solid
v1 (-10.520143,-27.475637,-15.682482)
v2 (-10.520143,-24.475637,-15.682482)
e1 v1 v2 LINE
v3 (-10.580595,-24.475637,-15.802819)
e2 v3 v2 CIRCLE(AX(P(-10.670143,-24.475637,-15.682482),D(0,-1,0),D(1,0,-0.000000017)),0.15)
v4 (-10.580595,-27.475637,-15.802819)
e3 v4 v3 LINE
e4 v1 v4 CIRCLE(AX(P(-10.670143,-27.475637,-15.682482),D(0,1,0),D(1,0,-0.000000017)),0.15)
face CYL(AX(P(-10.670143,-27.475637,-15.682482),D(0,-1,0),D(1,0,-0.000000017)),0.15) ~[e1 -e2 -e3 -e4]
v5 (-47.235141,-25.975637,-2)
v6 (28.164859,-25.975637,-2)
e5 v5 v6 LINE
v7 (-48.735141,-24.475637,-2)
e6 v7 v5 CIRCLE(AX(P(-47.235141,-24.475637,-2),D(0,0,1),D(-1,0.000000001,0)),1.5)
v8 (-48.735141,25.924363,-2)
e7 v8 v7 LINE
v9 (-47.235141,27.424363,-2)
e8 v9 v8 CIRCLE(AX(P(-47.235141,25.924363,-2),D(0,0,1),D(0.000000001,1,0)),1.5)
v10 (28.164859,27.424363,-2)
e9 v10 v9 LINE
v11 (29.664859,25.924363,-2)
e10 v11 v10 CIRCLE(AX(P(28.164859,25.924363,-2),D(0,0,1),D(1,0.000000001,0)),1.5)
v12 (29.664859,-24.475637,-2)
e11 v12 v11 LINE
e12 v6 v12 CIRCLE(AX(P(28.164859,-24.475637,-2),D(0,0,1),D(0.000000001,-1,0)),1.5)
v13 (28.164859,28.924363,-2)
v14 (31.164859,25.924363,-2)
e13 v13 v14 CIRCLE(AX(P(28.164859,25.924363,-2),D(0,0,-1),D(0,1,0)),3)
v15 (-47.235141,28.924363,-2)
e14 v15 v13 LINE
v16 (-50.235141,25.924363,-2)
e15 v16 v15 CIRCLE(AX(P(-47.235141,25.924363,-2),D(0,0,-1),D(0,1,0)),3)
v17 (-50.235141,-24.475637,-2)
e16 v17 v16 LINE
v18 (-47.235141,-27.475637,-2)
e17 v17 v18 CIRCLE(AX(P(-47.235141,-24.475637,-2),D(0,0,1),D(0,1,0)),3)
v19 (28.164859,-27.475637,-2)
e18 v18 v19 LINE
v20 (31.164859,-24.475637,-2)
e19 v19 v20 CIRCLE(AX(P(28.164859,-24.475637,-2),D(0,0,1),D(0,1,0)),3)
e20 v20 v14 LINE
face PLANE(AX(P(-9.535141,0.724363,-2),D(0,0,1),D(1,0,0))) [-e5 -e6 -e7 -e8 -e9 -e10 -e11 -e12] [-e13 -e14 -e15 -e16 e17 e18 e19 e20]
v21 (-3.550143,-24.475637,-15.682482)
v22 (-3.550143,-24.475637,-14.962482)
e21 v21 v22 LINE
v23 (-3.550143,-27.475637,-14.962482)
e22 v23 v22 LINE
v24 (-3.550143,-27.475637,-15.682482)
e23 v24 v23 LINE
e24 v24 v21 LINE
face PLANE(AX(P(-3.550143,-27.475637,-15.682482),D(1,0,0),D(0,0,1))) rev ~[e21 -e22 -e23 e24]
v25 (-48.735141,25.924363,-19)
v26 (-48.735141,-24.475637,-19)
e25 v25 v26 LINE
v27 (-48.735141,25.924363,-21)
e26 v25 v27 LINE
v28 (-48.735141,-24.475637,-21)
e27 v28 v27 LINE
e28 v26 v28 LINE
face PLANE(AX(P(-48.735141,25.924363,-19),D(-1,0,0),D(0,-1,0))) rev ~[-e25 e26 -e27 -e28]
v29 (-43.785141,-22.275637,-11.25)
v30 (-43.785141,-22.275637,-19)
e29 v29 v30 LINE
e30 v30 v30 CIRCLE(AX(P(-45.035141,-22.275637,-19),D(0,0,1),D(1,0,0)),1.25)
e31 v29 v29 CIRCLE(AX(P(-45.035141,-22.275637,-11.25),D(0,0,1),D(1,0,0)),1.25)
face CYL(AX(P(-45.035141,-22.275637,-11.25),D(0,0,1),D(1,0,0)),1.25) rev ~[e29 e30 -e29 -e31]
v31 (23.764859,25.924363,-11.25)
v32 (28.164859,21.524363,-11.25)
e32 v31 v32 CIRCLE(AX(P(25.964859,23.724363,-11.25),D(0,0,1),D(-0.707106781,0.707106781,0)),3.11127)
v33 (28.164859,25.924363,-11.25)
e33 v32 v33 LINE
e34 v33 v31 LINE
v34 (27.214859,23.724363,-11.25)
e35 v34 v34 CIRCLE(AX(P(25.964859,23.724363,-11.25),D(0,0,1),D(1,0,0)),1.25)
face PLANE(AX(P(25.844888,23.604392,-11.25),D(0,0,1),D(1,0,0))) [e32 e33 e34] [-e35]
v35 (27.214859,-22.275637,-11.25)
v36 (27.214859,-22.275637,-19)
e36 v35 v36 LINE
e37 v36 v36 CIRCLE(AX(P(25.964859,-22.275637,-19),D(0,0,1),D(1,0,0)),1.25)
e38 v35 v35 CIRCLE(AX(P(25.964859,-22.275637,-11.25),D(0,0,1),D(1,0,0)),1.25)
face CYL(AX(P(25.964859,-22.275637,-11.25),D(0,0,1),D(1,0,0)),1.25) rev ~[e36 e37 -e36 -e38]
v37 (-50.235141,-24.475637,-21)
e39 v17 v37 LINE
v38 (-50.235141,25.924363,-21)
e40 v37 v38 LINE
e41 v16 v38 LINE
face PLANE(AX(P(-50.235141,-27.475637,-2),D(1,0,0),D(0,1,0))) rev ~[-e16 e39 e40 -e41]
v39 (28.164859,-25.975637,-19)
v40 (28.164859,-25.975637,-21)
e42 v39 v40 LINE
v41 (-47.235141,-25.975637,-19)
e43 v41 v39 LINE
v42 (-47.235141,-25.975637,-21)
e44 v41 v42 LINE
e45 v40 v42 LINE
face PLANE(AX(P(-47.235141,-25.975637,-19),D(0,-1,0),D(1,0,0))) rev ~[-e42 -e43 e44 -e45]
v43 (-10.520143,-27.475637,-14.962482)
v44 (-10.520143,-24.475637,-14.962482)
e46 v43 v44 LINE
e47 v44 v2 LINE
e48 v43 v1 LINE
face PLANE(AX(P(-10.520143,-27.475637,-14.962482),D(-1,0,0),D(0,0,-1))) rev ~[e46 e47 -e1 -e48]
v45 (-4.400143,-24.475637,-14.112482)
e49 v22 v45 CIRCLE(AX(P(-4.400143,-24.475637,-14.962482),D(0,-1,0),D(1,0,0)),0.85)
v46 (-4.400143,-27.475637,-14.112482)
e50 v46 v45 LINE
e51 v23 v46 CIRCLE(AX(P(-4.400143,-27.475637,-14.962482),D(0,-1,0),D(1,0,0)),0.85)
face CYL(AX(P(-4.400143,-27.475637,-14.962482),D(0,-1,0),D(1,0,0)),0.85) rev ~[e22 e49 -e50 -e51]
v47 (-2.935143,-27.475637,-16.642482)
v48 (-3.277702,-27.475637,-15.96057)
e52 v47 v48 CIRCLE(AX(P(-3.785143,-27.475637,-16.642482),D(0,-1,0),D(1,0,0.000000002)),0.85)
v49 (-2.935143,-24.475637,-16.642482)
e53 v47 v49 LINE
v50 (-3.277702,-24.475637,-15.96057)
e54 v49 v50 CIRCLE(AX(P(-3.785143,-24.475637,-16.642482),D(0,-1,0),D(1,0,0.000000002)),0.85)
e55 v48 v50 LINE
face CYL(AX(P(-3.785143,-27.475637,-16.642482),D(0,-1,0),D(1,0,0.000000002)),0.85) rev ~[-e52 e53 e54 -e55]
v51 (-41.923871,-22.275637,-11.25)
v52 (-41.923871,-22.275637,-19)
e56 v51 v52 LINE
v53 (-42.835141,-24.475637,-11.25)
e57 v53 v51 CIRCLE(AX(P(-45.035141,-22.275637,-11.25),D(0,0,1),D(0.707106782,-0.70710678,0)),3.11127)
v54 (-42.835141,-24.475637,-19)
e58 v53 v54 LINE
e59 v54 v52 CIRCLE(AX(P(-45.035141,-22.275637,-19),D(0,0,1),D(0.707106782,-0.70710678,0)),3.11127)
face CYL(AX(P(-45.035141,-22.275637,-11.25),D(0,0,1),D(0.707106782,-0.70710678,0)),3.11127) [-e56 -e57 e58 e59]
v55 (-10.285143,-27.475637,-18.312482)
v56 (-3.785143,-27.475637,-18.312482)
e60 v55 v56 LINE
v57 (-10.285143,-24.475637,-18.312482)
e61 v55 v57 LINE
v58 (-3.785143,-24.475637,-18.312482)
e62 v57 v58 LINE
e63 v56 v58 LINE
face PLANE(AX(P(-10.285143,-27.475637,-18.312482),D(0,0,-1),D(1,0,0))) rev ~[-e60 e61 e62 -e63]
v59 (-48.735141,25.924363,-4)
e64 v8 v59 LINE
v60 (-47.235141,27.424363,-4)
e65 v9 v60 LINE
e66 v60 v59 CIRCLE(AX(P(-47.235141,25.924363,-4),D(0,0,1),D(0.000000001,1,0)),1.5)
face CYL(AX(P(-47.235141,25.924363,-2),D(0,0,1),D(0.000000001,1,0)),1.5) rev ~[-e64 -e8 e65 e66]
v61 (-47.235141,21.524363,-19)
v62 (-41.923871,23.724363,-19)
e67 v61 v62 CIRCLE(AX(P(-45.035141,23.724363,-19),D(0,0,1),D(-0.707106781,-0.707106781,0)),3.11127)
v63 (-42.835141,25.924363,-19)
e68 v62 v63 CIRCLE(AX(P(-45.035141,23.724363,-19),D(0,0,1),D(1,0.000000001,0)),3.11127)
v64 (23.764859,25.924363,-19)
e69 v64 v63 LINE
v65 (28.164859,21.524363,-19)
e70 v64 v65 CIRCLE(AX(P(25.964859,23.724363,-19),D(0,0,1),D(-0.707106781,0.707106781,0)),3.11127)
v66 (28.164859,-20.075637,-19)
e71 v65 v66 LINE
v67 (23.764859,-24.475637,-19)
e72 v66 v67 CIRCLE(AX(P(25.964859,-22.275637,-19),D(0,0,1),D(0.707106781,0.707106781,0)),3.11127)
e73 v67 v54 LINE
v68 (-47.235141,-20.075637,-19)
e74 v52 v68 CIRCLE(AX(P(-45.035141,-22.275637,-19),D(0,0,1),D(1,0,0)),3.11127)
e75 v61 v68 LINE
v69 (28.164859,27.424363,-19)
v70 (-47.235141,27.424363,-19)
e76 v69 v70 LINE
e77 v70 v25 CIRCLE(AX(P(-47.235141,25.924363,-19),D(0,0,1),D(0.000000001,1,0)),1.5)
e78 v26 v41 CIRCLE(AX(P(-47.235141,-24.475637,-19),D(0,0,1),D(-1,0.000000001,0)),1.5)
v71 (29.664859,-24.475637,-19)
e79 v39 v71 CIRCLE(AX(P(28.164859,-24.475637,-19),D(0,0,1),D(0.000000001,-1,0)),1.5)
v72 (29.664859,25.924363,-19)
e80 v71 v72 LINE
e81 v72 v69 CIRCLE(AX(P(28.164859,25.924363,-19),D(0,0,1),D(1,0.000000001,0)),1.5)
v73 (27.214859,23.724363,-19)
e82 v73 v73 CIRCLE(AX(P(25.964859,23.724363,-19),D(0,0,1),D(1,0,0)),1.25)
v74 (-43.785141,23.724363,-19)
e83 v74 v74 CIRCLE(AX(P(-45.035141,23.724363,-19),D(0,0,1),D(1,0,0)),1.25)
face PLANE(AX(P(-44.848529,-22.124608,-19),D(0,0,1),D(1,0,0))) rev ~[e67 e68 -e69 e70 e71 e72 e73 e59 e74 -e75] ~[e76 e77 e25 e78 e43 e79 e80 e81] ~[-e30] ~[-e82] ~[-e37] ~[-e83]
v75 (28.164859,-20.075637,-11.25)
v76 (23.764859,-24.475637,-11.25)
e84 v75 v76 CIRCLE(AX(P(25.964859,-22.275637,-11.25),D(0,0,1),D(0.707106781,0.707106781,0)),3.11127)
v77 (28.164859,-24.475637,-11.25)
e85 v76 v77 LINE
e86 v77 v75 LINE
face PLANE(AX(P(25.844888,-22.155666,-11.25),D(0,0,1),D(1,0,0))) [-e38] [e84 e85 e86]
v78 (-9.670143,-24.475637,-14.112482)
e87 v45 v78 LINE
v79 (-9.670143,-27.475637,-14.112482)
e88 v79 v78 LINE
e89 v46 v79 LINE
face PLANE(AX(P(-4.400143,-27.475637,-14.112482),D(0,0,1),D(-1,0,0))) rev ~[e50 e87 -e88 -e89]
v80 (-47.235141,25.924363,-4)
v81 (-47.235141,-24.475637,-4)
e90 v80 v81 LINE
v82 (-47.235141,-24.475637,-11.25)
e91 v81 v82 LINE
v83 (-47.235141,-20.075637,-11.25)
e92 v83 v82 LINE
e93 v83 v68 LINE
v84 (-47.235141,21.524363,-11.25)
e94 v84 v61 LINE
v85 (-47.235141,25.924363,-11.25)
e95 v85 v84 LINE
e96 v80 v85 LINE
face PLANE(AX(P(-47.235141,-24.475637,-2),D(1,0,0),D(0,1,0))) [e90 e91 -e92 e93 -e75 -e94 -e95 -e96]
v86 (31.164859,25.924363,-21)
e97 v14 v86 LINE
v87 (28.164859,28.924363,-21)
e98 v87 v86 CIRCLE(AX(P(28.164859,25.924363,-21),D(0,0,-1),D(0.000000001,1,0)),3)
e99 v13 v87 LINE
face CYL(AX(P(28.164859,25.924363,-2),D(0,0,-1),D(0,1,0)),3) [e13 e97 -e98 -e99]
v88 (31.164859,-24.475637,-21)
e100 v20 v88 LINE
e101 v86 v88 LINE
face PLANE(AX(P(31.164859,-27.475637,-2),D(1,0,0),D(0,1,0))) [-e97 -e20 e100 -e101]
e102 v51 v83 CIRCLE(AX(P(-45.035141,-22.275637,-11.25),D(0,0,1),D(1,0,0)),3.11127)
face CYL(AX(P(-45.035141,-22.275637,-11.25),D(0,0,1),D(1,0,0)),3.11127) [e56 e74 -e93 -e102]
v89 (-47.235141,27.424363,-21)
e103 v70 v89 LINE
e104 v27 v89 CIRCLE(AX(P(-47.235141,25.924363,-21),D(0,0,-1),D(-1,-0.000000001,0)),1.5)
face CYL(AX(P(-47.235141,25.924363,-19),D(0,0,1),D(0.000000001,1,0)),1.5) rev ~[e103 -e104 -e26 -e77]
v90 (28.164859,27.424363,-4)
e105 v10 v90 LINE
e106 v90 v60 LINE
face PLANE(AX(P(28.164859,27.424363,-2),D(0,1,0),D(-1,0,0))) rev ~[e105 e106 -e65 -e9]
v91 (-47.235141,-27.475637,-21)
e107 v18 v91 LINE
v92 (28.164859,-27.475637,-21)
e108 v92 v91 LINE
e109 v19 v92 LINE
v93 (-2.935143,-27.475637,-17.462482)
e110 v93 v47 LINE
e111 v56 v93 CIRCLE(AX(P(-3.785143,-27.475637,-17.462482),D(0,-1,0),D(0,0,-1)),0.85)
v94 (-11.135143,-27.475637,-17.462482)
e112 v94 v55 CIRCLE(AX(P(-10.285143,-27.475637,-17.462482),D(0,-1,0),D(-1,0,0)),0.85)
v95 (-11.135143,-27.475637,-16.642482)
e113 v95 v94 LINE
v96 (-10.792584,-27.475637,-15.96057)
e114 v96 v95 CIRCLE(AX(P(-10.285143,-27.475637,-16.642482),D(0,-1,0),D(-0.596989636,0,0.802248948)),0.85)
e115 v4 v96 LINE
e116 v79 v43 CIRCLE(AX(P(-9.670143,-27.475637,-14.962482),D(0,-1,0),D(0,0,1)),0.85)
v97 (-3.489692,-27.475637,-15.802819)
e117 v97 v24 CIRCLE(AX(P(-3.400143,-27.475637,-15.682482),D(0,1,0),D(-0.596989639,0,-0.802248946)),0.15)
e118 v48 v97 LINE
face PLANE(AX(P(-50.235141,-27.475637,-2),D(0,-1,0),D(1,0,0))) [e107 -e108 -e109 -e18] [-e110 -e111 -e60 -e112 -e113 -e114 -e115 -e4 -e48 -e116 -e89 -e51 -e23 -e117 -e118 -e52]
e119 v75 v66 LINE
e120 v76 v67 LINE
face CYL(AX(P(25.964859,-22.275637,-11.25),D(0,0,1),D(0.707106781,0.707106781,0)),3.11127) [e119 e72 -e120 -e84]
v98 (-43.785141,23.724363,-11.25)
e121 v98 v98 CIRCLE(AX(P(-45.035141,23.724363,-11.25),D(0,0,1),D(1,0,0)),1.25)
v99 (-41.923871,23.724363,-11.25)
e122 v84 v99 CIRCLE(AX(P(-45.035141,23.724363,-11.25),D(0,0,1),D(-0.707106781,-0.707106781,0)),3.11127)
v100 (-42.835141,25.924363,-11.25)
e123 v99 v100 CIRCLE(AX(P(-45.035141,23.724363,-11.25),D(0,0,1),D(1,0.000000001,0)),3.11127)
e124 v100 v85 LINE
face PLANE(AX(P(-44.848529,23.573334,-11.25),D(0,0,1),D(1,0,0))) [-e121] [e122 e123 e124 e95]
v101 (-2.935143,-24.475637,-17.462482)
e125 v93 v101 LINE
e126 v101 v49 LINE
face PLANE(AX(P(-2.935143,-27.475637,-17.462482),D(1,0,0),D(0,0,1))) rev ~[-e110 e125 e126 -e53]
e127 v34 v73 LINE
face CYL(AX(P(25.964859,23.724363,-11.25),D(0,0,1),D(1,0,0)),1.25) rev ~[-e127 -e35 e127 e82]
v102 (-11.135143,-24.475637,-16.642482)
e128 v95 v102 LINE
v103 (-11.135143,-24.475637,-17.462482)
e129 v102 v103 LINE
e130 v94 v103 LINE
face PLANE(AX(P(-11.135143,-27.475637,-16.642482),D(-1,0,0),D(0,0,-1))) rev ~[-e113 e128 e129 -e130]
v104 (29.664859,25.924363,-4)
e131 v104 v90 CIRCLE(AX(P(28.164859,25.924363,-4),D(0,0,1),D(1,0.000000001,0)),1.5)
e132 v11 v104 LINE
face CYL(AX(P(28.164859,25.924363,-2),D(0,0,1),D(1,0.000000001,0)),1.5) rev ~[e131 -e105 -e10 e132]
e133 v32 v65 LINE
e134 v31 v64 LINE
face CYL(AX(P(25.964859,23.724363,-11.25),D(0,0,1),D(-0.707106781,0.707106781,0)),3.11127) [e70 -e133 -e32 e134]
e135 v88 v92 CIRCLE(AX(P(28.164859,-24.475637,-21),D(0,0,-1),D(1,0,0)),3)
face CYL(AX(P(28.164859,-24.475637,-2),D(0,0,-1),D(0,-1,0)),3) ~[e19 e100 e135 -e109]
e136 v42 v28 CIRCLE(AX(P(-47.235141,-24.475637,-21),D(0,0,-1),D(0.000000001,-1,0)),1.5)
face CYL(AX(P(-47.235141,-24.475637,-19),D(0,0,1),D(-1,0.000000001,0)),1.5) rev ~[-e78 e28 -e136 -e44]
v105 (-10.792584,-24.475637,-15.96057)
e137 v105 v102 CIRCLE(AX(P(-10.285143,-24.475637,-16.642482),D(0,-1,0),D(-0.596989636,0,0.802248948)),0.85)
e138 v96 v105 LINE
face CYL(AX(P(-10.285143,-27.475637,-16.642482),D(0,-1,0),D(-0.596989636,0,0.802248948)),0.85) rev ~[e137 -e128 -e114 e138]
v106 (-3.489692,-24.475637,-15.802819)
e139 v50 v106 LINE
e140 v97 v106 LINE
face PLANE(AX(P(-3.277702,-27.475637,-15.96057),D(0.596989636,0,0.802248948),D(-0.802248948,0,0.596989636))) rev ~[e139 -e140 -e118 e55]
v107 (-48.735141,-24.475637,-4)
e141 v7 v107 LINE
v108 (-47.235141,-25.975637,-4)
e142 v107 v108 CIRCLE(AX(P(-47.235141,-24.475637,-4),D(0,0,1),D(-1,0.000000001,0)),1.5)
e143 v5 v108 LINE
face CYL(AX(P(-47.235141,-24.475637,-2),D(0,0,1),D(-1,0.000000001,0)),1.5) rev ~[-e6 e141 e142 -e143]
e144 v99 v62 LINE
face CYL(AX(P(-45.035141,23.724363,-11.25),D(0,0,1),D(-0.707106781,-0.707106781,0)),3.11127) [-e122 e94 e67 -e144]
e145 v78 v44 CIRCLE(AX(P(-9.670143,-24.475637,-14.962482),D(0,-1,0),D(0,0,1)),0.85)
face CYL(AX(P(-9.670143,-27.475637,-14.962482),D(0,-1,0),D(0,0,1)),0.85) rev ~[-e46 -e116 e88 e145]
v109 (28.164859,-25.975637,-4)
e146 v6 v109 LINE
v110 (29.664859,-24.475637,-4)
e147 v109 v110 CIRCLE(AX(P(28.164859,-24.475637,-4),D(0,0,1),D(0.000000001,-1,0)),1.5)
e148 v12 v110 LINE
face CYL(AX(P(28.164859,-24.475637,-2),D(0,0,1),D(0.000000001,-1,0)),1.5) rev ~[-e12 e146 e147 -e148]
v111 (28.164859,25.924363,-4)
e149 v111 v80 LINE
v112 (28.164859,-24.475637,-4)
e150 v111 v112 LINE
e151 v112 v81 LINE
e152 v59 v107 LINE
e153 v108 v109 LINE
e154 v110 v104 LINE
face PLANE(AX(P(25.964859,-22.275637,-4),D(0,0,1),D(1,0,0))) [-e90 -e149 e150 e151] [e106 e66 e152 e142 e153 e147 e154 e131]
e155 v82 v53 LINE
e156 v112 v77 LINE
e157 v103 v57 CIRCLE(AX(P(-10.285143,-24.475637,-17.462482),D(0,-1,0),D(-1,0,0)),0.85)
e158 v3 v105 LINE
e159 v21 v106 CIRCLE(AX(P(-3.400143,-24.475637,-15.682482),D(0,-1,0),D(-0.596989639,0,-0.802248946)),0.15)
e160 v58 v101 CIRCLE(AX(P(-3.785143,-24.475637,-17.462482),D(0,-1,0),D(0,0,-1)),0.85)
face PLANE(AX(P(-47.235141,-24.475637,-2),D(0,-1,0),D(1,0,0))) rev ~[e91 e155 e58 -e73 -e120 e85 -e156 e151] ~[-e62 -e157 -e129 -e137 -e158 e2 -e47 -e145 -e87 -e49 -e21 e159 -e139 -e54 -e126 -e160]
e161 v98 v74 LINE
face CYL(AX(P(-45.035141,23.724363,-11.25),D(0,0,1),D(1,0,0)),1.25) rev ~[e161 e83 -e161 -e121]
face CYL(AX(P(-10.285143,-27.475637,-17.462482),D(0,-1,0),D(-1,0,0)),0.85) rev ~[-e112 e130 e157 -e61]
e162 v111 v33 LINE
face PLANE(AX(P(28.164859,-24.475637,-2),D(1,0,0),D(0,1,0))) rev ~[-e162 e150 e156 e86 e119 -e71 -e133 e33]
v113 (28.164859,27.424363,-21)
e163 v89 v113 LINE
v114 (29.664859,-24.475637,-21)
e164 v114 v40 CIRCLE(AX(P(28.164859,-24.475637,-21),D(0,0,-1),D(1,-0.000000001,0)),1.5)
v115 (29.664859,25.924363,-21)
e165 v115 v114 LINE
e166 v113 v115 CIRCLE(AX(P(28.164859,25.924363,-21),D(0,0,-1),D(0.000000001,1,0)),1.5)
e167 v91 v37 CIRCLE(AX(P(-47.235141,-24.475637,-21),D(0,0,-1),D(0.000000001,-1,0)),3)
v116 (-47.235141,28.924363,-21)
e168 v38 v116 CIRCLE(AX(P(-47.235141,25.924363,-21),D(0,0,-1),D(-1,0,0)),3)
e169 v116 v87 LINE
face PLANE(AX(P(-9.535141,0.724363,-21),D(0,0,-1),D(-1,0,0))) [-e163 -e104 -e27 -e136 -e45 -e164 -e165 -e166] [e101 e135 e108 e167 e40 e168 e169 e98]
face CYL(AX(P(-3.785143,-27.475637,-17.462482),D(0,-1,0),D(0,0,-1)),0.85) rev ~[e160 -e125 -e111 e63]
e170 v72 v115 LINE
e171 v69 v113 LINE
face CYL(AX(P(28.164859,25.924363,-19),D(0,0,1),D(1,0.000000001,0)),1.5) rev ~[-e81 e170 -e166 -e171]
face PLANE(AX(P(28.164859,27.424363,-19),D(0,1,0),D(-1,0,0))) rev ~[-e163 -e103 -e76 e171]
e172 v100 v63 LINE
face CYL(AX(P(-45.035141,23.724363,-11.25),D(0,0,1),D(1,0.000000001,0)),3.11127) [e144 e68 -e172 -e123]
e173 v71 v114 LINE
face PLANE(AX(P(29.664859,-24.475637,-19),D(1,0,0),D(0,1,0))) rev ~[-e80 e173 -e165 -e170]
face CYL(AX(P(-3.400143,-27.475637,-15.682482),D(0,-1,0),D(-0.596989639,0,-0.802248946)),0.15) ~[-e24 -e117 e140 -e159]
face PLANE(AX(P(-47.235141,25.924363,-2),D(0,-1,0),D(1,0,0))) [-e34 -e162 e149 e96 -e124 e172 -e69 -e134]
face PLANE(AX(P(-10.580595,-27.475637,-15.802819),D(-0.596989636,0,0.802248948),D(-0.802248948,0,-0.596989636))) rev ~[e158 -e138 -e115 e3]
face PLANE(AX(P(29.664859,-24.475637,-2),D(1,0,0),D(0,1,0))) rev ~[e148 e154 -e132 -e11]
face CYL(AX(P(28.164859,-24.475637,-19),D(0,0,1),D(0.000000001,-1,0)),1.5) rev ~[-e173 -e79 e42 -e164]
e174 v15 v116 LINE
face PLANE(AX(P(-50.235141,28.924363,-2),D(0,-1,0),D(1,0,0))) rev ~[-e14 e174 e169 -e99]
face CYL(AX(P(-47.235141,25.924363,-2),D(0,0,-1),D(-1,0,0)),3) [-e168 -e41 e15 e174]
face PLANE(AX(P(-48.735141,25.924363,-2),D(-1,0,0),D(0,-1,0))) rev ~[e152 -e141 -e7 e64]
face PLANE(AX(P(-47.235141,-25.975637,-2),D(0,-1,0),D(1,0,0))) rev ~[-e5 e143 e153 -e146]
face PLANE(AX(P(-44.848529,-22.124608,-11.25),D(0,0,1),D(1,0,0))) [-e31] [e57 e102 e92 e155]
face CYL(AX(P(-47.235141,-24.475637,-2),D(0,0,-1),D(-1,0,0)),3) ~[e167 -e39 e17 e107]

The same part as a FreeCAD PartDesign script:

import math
import FreeCAD as App
import Part
import Sketcher

V = App.Vector


def edges_at(feature, points):
    """Names of the edges that pass closest to the given points."""
    edges = feature.Shape.Edges
    near = lambda p: min(range(len(edges)), key=lambda i: edges[i].distToShape(Part.Vertex(*p))[0])
    return sorted({f"Edge{near(p) + 1}" for p in points})


def add_polygon(sketch, points):
    """Adds a closed chain of lines whose ends are joined by coincident constraints."""
    first, n = sketch.GeometryCount, len(points)
    for a, b in zip(points, points[1:] + points[:1]):
        sketch.addGeometry(Part.LineSegment(App.Vector(*a, 0), App.Vector(*b, 0)), False)
    for i in range(n):
        sketch.addConstraint(Sketcher.Constraint("Coincident", first + i, 2, first + (i + 1) % n, 1))

doc = App.newDocument("Part")
body = doc.addObject("PartDesign::Body", "Body")

sketch1 = body.newObject("Sketcher::SketchObject", "Sketch")
sketch1.AttachmentSupport = (doc.getObject("XY_Plane"), [""])
sketch1.MapMode = "FlatFace"
sketch1.AttachmentOffset = App.Placement(V(0, 0, -2), App.Rotation())
add_polygon(sketch1, [(-50.235141, 28.924363), (-50.235141, -27.475637), (31.164859, -27.475637), (31.164859, 28.924363)])
add_polygon(sketch1, [(28.164859, -24.475637), (-47.235141, -24.475637), (-47.235141, 25.924363), (28.164859, 25.924363)])
sketch1.addConstraint([
    Sketcher.Constraint("Vertical", 0),
    Sketcher.Constraint("Horizontal", 1),
    Sketcher.Constraint("Vertical", 2),
    Sketcher.Constraint("Horizontal", 3),
    Sketcher.Constraint("Horizontal", 4),
    Sketcher.Constraint("Vertical", 5),
    Sketcher.Constraint("Horizontal", 6),
    Sketcher.Constraint("Vertical", 7),
    Sketcher.Constraint("DistanceX", 1, 1, 1, 2, 81.4),
    Sketcher.Constraint("DistanceX", 4, 2, 4, 1, 75.4),
    Sketcher.Constraint("DistanceY", 0, 2, 0, 1, 56.4),
    Sketcher.Constraint("DistanceY", 5, 1, 5, 2, 50.4),
    Sketcher.Constraint("DistanceX", 0, 2, 4, 2, 3.0),
    Sketcher.Constraint("DistanceY", 0, 2, 4, 2, 3.0),
    Sketcher.Constraint("DistanceX", 0, 2, -1, 1, 50.235141),
    Sketcher.Constraint("DistanceY", 0, 2, -1, 1, 27.475637),
])
pad1 = body.newObject("PartDesign::Pad", "Pad")
pad1.Profile = sketch1
pad1.Length = 27
pad1.Reversed = True
doc.recompute()

fillet = body.newObject("PartDesign::Fillet", "Fillet")
fillet.Base = (pad1, edges_at(pad1, [
    (-50.235, -27.476, -15.5),
    (-50.235, 28.924, -15.5),
    (31.165, 28.924, -15.5),
    (31.165, -27.476, -15.5),
]))
fillet.Radius = 3

sketch2 = body.newObject("Sketcher::SketchObject", "Sketch001")
sketch2.AttachmentSupport = (doc.getObject("XY_Plane"), [""])
sketch2.MapMode = "FlatFace"
sketch2.AttachmentOffset = App.Placement(V(0, 0, -2), App.Rotation())
sketch2.addGeometry([
    Part.LineSegment(V(28.164859, 27.424363, 0), V(-47.235141, 27.424363, 0)),
    Part.ArcOfCircle(Part.Circle(V(-47.235141, 25.924363, 0), V(0, 0, 1), 1.5), math.radians(90), math.radians(180)),
    Part.LineSegment(V(-48.735141, 25.924363, 0), V(-48.735141, -24.475637, 0)),
    Part.ArcOfCircle(Part.Circle(V(-47.235141, -24.475637, 0), V(0, 0, 1), 1.5), math.radians(180), math.radians(270)),
    Part.LineSegment(V(-47.235141, -25.975637, 0), V(28.164859, -25.975637, 0)),
    Part.ArcOfCircle(Part.Circle(V(28.164859, -24.475637, 0), V(0, 0, 1), 1.5), math.radians(-90), math.radians(0)),
    Part.LineSegment(V(29.664859, -24.475637, 0), V(29.664859, 25.924363, 0)),
    Part.ArcOfCircle(Part.Circle(V(28.164859, 25.924363, 0), V(0, 0, 1), 1.5), math.radians(0), math.radians(90)),
], False)
sketch2.addConstraint([
    Sketcher.Constraint("Tangent", 0, 2, 1, 1),
    Sketcher.Constraint("Tangent", 1, 2, 2, 1),
    Sketcher.Constraint("Tangent", 2, 2, 3, 1),
    Sketcher.Constraint("Tangent", 3, 2, 4, 1),
    Sketcher.Constraint("Tangent", 4, 2, 5, 1),
    Sketcher.Constraint("Tangent", 5, 2, 6, 1),
    Sketcher.Constraint("Tangent", 6, 2, 7, 1),
    Sketcher.Constraint("Tangent", 7, 2, 0, 1),
    Sketcher.Constraint("Horizontal", 0),
    Sketcher.Constraint("Vertical", 2),
    Sketcher.Constraint("Horizontal", 4),
    Sketcher.Constraint("Vertical", 6),
    Sketcher.Constraint("Equal", 1, 3),
    Sketcher.Constraint("Equal", 3, 5),
    Sketcher.Constraint("Equal", 5, 7),
    Sketcher.Constraint("Radius", 1, 1.5),
    Sketcher.Constraint("DistanceX", 0, 2, 0, 1, 75.4),
    Sketcher.Constraint("DistanceY", 2, 2, 2, 1, 50.4),
    Sketcher.Constraint("DistanceX", 1, 3, -1, 1, 47.235141),
    Sketcher.Constraint("DistanceY", -1, 1, 1, 3, 25.924363),
])
pocket1 = body.newObject("PartDesign::Pocket", "Pocket")
pocket1.Profile = sketch2
pocket1.Length = 2

sketch3 = body.newObject("Sketcher::SketchObject", "Sketch002")
sketch3.AttachmentSupport = (doc.getObject("XY_Plane"), [""])
sketch3.MapMode = "FlatFace"
sketch3.AttachmentOffset = App.Placement(V(0, 0, -19), App.Rotation())
sketch3.addGeometry([
    Part.LineSegment(V(28.164859, 27.424363, 0), V(-47.235141, 27.424363, 0)),
    Part.ArcOfCircle(Part.Circle(V(-47.235141, 25.924363, 0), V(0, 0, 1), 1.5), math.radians(90), math.radians(180)),
    Part.LineSegment(V(-48.735141, 25.924363, 0), V(-48.735141, -24.475637, 0)),
    Part.ArcOfCircle(Part.Circle(V(-47.235141, -24.475637, 0), V(0, 0, 1), 1.5), math.radians(180), math.radians(270)),
    Part.LineSegment(V(-47.235141, -25.975637, 0), V(28.164859, -25.975637, 0)),
    Part.ArcOfCircle(Part.Circle(V(28.164859, -24.475637, 0), V(0, 0, 1), 1.5), math.radians(-90), math.radians(0)),
    Part.LineSegment(V(29.664859, -24.475637, 0), V(29.664859, 25.924363, 0)),
    Part.ArcOfCircle(Part.Circle(V(28.164859, 25.924363, 0), V(0, 0, 1), 1.5), math.radians(0), math.radians(90)),
    Part.Circle(V(-45.035141, -22.275637, 0), V(0, 0, 1), 1.3),
    Part.Circle(V(25.964859, -22.275637, 0), V(0, 0, 1), 1.3),
    Part.Circle(V(-45.035141, 23.724363, 0), V(0, 0, 1), 1.3),
    Part.Circle(V(25.964859, 23.724363, 0), V(0, 0, 1), 1.3),
], False)
sketch3.addConstraint([
    Sketcher.Constraint("Tangent", 0, 2, 1, 1),
    Sketcher.Constraint("Tangent", 1, 2, 2, 1),
    Sketcher.Constraint("Tangent", 2, 2, 3, 1),
    Sketcher.Constraint("Tangent", 3, 2, 4, 1),
    Sketcher.Constraint("Tangent", 4, 2, 5, 1),
    Sketcher.Constraint("Tangent", 5, 2, 6, 1),
    Sketcher.Constraint("Tangent", 6, 2, 7, 1),
    Sketcher.Constraint("Tangent", 7, 2, 0, 1),
    Sketcher.Constraint("Horizontal", 0),
    Sketcher.Constraint("Vertical", 2),
    Sketcher.Constraint("Horizontal", 4),
    Sketcher.Constraint("Vertical", 6),
    Sketcher.Constraint("Equal", 1, 3),
    Sketcher.Constraint("Equal", 3, 5),
    Sketcher.Constraint("Equal", 5, 7),
    Sketcher.Constraint("Equal", 8, 9),
    Sketcher.Constraint("Equal", 9, 10),
    Sketcher.Constraint("Equal", 10, 11),
    Sketcher.Constraint("Horizontal", 8, 3, 9, 3),
    Sketcher.Constraint("Horizontal", 10, 3, 11, 3),
    Sketcher.Constraint("Vertical", 8, 3, 10, 3),
    Sketcher.Constraint("Vertical", 9, 3, 11, 3),
    Sketcher.Constraint("Diameter", 8, 2.6),
    Sketcher.Constraint("Radius", 1, 1.5),
    Sketcher.Constraint("DistanceX", 0, 2, 0, 1, 75.4),
    Sketcher.Constraint("DistanceY", 2, 2, 2, 1, 50.4),
    Sketcher.Constraint("DistanceX", 8, 3, 9, 3, 71.0),
    Sketcher.Constraint("DistanceY", 8, 3, 10, 3, 46.0),
    Sketcher.Constraint("DistanceX", 3, 3, 8, 3, 2.2),
    Sketcher.Constraint("DistanceY", 3, 3, 8, 3, 2.2),
    Sketcher.Constraint("DistanceX", 1, 3, -1, 1, 47.235141),
    Sketcher.Constraint("DistanceY", -1, 1, 1, 3, 25.924363),
])
pocket2 = body.newObject("PartDesign::Pocket", "Pocket001")
pocket2.Profile = sketch3
pocket2.Length = 10

sketch4 = body.newObject("Sketcher::SketchObject", "Sketch003")
sketch4.AttachmentSupport = (doc.getObject("XY_Plane"), [""])
sketch4.MapMode = "FlatFace"
sketch4.AttachmentOffset = App.Placement(V(0, 0, -11.25), App.Rotation())
sketch4.addGeometry([
    Part.LineSegment(V(-47.235141, -24.475637, 0), V(-42.835141, -24.475637, 0)),
    Part.ArcOfCircle(Part.Circle(V(-45.035141, -22.275637, 0), V(0, 0, 1), 3.11127), math.radians(-45), math.radians(0)),
    Part.ArcOfCircle(Part.Circle(V(-45.035141, -22.275637, 0), V(0, 0, 1), 3.11127), math.radians(0), math.radians(135)),
    Part.LineSegment(V(-47.235141, -20.075637, 0), V(-47.235141, -24.475637, 0)),
    Part.Circle(V(-45.035141, -22.275637, 0), V(0, 0, 1), 1.25),
    Part.ArcOfCircle(Part.Circle(V(-45.035141, 23.724363, 0), V(0, 0, 1), 3.11127), math.radians(0), math.radians(45)),
    Part.LineSegment(V(-42.835141, 25.924363, 0), V(-47.235141, 25.924363, 0)),
    Part.LineSegment(V(-47.235141, 25.924363, 0), V(-47.235141, 21.524363, 0)),
    Part.ArcOfCircle(Part.Circle(V(-45.035141, 23.724363, 0), V(0, 0, 1), 3.11127), math.radians(-135), math.radians(0)),
    Part.Circle(V(-45.035141, 23.724363, 0), V(0, 0, 1), 1.25),
    Part.ArcOfCircle(Part.Circle(V(25.964859, 23.724363, 0), V(0, 0, 1), 3.11127), math.radians(135), math.radians(315)),
    Part.LineSegment(V(28.164859, 21.524363, 0), V(28.164859, 25.924363, 0)),
    Part.LineSegment(V(28.164859, 25.924363, 0), V(23.764859, 25.924363, 0)),
    Part.Circle(V(25.964859, 23.724363, 0), V(0, 0, 1), 1.25),
    Part.LineSegment(V(23.764859, -24.475637, 0), V(28.164859, -24.475637, 0)),
    Part.LineSegment(V(28.164859, -24.475637, 0), V(28.164859, -20.075637, 0)),
    Part.ArcOfCircle(Part.Circle(V(25.964859, -22.275637, 0), V(0, 0, 1), 3.11127), math.radians(45), math.radians(225)),
    Part.Circle(V(25.964859, -22.275637, 0), V(0, 0, 1), 1.25),
], False)
sketch4.addConstraint([
    Sketcher.Constraint("Coincident", 0, 2, 1, 1),
    Sketcher.Constraint("Tangent", 1, 2, 2, 1),
    Sketcher.Constraint("Coincident", 2, 2, 3, 1),
    Sketcher.Constraint("Coincident", 3, 2, 0, 1),
    Sketcher.Constraint("Coincident", 5, 2, 6, 1),
    Sketcher.Constraint("Coincident", 6, 2, 7, 1),
    Sketcher.Constraint("Coincident", 7, 2, 8, 1),
    Sketcher.Constraint("Tangent", 8, 2, 5, 1),
    Sketcher.Constraint("Coincident", 10, 2, 11, 1),
    Sketcher.Constraint("Coincident", 11, 2, 12, 1),
    Sketcher.Constraint("Coincident", 12, 2, 10, 1),
    Sketcher.Constraint("Coincident", 14, 2, 15, 1),
    Sketcher.Constraint("Coincident", 15, 2, 16, 1),
    Sketcher.Constraint("Coincident", 16, 2, 14, 1),
    Sketcher.Constraint("Horizontal", 0),
    Sketcher.Constraint("Vertical", 3),
    Sketcher.Constraint("Horizontal", 6),
    Sketcher.Constraint("Vertical", 7),
    Sketcher.Constraint("Vertical", 11),
    Sketcher.Constraint("Horizontal", 12),
    Sketcher.Constraint("Horizontal", 14),
    Sketcher.Constraint("Vertical", 15),
    Sketcher.Constraint("Coincident", 4, 3, 1, 3),
    Sketcher.Constraint("Coincident", 9, 3, 5, 3),
    Sketcher.Constraint("Coincident", 13, 3, 10, 3),
    Sketcher.Constraint("Coincident", 17, 3, 16, 3),
    Sketcher.Constraint("Equal", 1, 2),
    Sketcher.Constraint("Equal", 2, 5),
    Sketcher.Constraint("Equal", 5, 8),
    Sketcher.Constraint("Equal", 4, 9),
    Sketcher.Constraint("Equal", 8, 10),
    Sketcher.Constraint("Equal", 9, 13),
    Sketcher.Constraint("Equal", 10, 16),
    Sketcher.Constraint("Equal", 13, 17),
    Sketcher.Constraint("Horizontal", 9, 3, 10, 3),
    Sketcher.Constraint("Horizontal", 4, 3, 16, 3),
    Sketcher.Constraint("Horizontal", 17, 3, 1, 2),
    Sketcher.Constraint("Horizontal", 13, 3, 8, 2),
    Sketcher.Constraint("Horizontal", 7, 2, 10, 2),
    Sketcher.Constraint("Horizontal", 6, 2, 11, 2),
    Sketcher.Constraint("Horizontal", 3, 2, 14, 2),
    Sketcher.Constraint("Horizontal", 2, 2, 15, 2),
    Sketcher.Constraint("Vertical", 4, 3, 5, 3),
    Sketcher.Constraint("Vertical", 13, 3, 16, 3),
    Sketcher.Constraint("Vertical", 0, 2, 5, 2),
    Sketcher.Constraint("Vertical", 3, 2, 6, 2),
    Sketcher.Constraint("Equal", 14, 3),
    Sketcher.Constraint("Diameter", 4, 2.5),
    Sketcher.Constraint("DistanceX", 0, 1, 0, 2, 4.4),
    Sketcher.Constraint("DistanceY", 1, 3, 5, 3, 46.0),
    Sketcher.Constraint("DistanceX", 8, 3, 10, 3, 71.0),
    Sketcher.Constraint("DistanceY", 2, 2, 5, 2, 46.0),
    Sketcher.Constraint("DistanceX", 1, 3, -1, 1, 45.035141),
    Sketcher.Constraint("DistanceY", 1, 3, -1, 1, 22.275637),
])
pad2 = body.newObject("PartDesign::Pad", "Pad001")
pad2.Profile = sketch4
pad2.Length = 7.75
pad2.Reversed = True

sketch5 = body.newObject("Sketcher::SketchObject", "Sketch004")
sketch5.AttachmentSupport = (doc.getObject("XZ_Plane"), [""])
sketch5.MapMode = "FlatFace"
sketch5.AttachmentOffset = App.Placement(V(0, 0, 27.475637), App.Rotation())
sketch5.addGeometry([
    Part.LineSegment(V(-10.285143, -18.312482, 0), V(-3.785143, -18.312482, 0)),
    Part.ArcOfCircle(Part.Circle(V(-3.785143, -17.462482, 0), V(0, 0, 1), 0.85), math.radians(-90), math.radians(0)),
    Part.LineSegment(V(-2.935143, -17.462482, 0), V(-2.935143, -16.642482, 0)),
    Part.ArcOfCircle(Part.Circle(V(-3.785143, -16.642482, 0), V(0, 0, 1), 0.85), math.radians(0), math.radians(53.345401)),
    Part.LineSegment(V(-3.277702, -15.96057, 0), V(-3.489692, -15.802819, 0)),
    Part.ArcOfCircle(Part.Circle(V(-3.400143, -15.682482, 0), V(0, 0, 1), 0.15), math.radians(180), math.radians(233.345401)),
    Part.LineSegment(V(-3.550143, -15.682482, 0), V(-3.550143, -14.962482, 0)),
    Part.ArcOfCircle(Part.Circle(V(-4.400143, -14.962482, 0), V(0, 0, 1), 0.85), math.radians(0), math.radians(90)),
    Part.LineSegment(V(-4.400143, -14.112482, 0), V(-9.670143, -14.112482, 0)),
    Part.ArcOfCircle(Part.Circle(V(-9.670143, -14.962482, 0), V(0, 0, 1), 0.85), math.radians(90), math.radians(180)),
    Part.LineSegment(V(-10.520143, -14.962482, 0), V(-10.520143, -15.682482, 0)),
    Part.ArcOfCircle(Part.Circle(V(-10.670143, -15.682482, 0), V(0, 0, 1), 0.15), math.radians(-53.3454), math.radians(-0.000001)),
    Part.LineSegment(V(-10.580595, -15.802819, 0), V(-10.792584, -15.96057, 0)),
    Part.ArcOfCircle(Part.Circle(V(-10.285143, -16.642482, 0), V(0, 0, 1), 0.85), math.radians(126.654599), math.radians(180)),
    Part.LineSegment(V(-11.135143, -16.642482, 0), V(-11.135143, -17.462482, 0)),
    Part.ArcOfCircle(Part.Circle(V(-10.285143, -17.462482, 0), V(0, 0, 1), 0.85), math.radians(180), math.radians(270)),
], False)
sketch5.addConstraint([
    Sketcher.Constraint("Tangent", 0, 2, 1, 1),
    Sketcher.Constraint("Tangent", 1, 2, 2, 1),
    Sketcher.Constraint("Tangent", 2, 2, 3, 1),
    Sketcher.Constraint("Tangent", 3, 2, 4, 1),
    Sketcher.Constraint("Tangent", 4, 2, 5, 2),
    Sketcher.Constraint("Tangent", 5, 1, 6, 1),
    Sketcher.Constraint("Tangent", 6, 2, 7, 1),
    Sketcher.Constraint("Tangent", 7, 2, 8, 1),
    Sketcher.Constraint("Tangent", 8, 2, 9, 1),
    Sketcher.Constraint("Tangent", 9, 2, 10, 1),
    Sketcher.Constraint("Tangent", 10, 2, 11, 2),
    Sketcher.Constraint("Tangent", 11, 1, 12, 1),
    Sketcher.Constraint("Tangent", 12, 2, 13, 1),
    Sketcher.Constraint("Tangent", 13, 2, 14, 1),
    Sketcher.Constraint("Tangent", 14, 2, 15, 1),
    Sketcher.Constraint("Tangent", 15, 2, 0, 1),
    Sketcher.Constraint("Horizontal", 0),
    Sketcher.Constraint("Vertical", 2),
    Sketcher.Constraint("Vertical", 6),
    Sketcher.Constraint("Horizontal", 8),
    Sketcher.Constraint("Vertical", 10),
    Sketcher.Constraint("Vertical", 14),
    Sketcher.Constraint("Equal", 1, 3),
    Sketcher.Constraint("Equal", 3, 7),
    Sketcher.Constraint("Equal", 7, 9),
    Sketcher.Constraint("Equal", 5, 11),
    Sketcher.Constraint("Equal", 9, 13),
    Sketcher.Constraint("Equal", 13, 15),
    Sketcher.Constraint("Horizontal", 5, 3, 11, 3),
    Sketcher.Constraint("Horizontal", 3, 3, 13, 3),
    Sketcher.Constraint("Horizontal", 4, 2, 11, 1),
    Sketcher.Constraint("Radius", 1, 0.85),
    Sketcher.Constraint("Radius", 5, 0.15),
    Sketcher.Constraint("DistanceX", 0, 1, 0, 2, 6.5),
    Sketcher.Constraint("DistanceX", 8, 2, 8, 1, 5.27),
    Sketcher.Constraint("DistanceY", 2, 1, 2, 2, 0.82),
    Sketcher.Constraint("DistanceY", 6, 1, 6, 2, 0.72),
    Sketcher.Constraint("DistanceY", 1, 3, 7, 3, 2.5),
    Sketcher.Constraint("DistanceY", 1, 3, -1, 1, 17.462482),
    Sketcher.Constraint("DistanceX", 4, 2, -1, 1, 3.489692),
])
pocket3 = body.newObject("PartDesign::Pocket", "Pocket002")
pocket3.Profile = sketch5
pocket3.Length = 28.2

sketch6 = body.newObject("Sketcher::SketchObject", "Sketch005")
sketch6.AttachmentSupport = (doc.getObject("XY_Plane"), [""])
sketch6.MapMode = "FlatFace"
sketch6.AttachmentOffset = App.Placement(V(0, 0, -21), App.Rotation())
sketch6.addGeometry([
    Part.LineSegment(V(-50.235141, -24.475637, 0), V(-50.235141, 25.924363, 0)),
    Part.ArcOfCircle(Part.Circle(V(-47.235141, 25.924363, 0), V(0, 0, 1), 3), math.radians(90), math.radians(180)),
    Part.LineSegment(V(-47.235141, 28.924363, 0), V(28.164859, 28.924363, 0)),
    Part.ArcOfCircle(Part.Circle(V(28.164859, 25.924363, 0), V(0, 0, 1), 3), math.radians(0), math.radians(90)),
    Part.LineSegment(V(31.164859, 25.924363, 0), V(31.164859, -24.475637, 0)),
    Part.ArcOfCircle(Part.Circle(V(28.164859, -24.475637, 0), V(0, 0, 1), 3), math.radians(-90), math.radians(0)),
    Part.LineSegment(V(28.164859, -27.475637, 0), V(-47.235141, -27.475637, 0)),
    Part.ArcOfCircle(Part.Circle(V(-47.235141, -24.475637, 0), V(0, 0, 1), 3), math.radians(180), math.radians(270)),
    Part.LineSegment(V(29.664859, -24.475637, 0), V(29.664859, 25.924363, 0)),
    Part.ArcOfCircle(Part.Circle(V(28.164859, 25.924363, 0), V(0, 0, 1), 1.5), math.radians(0), math.radians(90)),
    Part.LineSegment(V(28.164859, 27.424363, 0), V(-47.235141, 27.424363, 0)),
    Part.ArcOfCircle(Part.Circle(V(-47.235141, 25.924363, 0), V(0, 0, 1), 1.5), math.radians(90), math.radians(180)),
    Part.LineSegment(V(-48.735141, 25.924363, 0), V(-48.735141, -24.475637, 0)),
    Part.ArcOfCircle(Part.Circle(V(-47.235141, -24.475637, 0), V(0, 0, 1), 1.5), math.radians(180), math.radians(270)),
    Part.LineSegment(V(-47.235141, -25.975637, 0), V(28.164859, -25.975637, 0)),
    Part.ArcOfCircle(Part.Circle(V(28.164859, -24.475637, 0), V(0, 0, 1), 1.5), math.radians(-90), math.radians(0)),
], False)
sketch6.addConstraint([
    Sketcher.Constraint("Tangent", 0, 2, 1, 2),
    Sketcher.Constraint("Tangent", 1, 1, 2, 1),
    Sketcher.Constraint("Tangent", 2, 2, 3, 2),
    Sketcher.Constraint("Tangent", 3, 1, 4, 1),
    Sketcher.Constraint("Tangent", 4, 2, 5, 2),
    Sketcher.Constraint("Tangent", 5, 1, 6, 1),
    Sketcher.Constraint("Tangent", 6, 2, 7, 2),
    Sketcher.Constraint("Tangent", 7, 1, 0, 1),
    Sketcher.Constraint("Tangent", 8, 2, 9, 1),
    Sketcher.Constraint("Tangent", 9, 2, 10, 1),
    Sketcher.Constraint("Tangent", 10, 2, 11, 1),
    Sketcher.Constraint("Tangent", 11, 2, 12, 1),
    Sketcher.Constraint("Tangent", 12, 2, 13, 1),
    Sketcher.Constraint("Tangent", 13, 2, 14, 1),
    Sketcher.Constraint("Tangent", 14, 2, 15, 1),
    Sketcher.Constraint("Tangent", 15, 2, 8, 1),
    Sketcher.Constraint("Vertical", 0),
    Sketcher.Constraint("Horizontal", 2),
    Sketcher.Constraint("Vertical", 4),
    Sketcher.Constraint("Horizontal", 6),
    Sketcher.Constraint("Vertical", 8),
    Sketcher.Constraint("Horizontal", 10),
    Sketcher.Constraint("Vertical", 12),
    Sketcher.Constraint("Horizontal", 14),
    Sketcher.Constraint("Coincident", 9, 3, 3, 3),
    Sketcher.Constraint("Coincident", 11, 3, 1, 3),
    Sketcher.Constraint("Coincident", 13, 3, 7, 3),
    Sketcher.Constraint("Equal", 1, 3),
    Sketcher.Constraint("Equal", 3, 5),
    Sketcher.Constraint("Equal", 5, 7),
    Sketcher.Constraint("Equal", 13, 15),
    Sketcher.Constraint("Radius", 1, 3.0),
    Sketcher.Constraint("Radius", 9, 1.5),
    Sketcher.Constraint("DistanceX", 2, 1, 2, 2, 75.4),
    Sketcher.Constraint("DistanceY", 0, 1, 0, 2, 50.4),
    Sketcher.Constraint("DistanceX", 1, 3, -1, 1, 47.235141),
    Sketcher.Constraint("DistanceY", -1, 1, 1, 3, 25.924363),
])
pocket4 = body.newObject("PartDesign::Pocket", "Pocket003")
pocket4.Profile = sketch6
pocket4.Length = 8

doc.recompute()
